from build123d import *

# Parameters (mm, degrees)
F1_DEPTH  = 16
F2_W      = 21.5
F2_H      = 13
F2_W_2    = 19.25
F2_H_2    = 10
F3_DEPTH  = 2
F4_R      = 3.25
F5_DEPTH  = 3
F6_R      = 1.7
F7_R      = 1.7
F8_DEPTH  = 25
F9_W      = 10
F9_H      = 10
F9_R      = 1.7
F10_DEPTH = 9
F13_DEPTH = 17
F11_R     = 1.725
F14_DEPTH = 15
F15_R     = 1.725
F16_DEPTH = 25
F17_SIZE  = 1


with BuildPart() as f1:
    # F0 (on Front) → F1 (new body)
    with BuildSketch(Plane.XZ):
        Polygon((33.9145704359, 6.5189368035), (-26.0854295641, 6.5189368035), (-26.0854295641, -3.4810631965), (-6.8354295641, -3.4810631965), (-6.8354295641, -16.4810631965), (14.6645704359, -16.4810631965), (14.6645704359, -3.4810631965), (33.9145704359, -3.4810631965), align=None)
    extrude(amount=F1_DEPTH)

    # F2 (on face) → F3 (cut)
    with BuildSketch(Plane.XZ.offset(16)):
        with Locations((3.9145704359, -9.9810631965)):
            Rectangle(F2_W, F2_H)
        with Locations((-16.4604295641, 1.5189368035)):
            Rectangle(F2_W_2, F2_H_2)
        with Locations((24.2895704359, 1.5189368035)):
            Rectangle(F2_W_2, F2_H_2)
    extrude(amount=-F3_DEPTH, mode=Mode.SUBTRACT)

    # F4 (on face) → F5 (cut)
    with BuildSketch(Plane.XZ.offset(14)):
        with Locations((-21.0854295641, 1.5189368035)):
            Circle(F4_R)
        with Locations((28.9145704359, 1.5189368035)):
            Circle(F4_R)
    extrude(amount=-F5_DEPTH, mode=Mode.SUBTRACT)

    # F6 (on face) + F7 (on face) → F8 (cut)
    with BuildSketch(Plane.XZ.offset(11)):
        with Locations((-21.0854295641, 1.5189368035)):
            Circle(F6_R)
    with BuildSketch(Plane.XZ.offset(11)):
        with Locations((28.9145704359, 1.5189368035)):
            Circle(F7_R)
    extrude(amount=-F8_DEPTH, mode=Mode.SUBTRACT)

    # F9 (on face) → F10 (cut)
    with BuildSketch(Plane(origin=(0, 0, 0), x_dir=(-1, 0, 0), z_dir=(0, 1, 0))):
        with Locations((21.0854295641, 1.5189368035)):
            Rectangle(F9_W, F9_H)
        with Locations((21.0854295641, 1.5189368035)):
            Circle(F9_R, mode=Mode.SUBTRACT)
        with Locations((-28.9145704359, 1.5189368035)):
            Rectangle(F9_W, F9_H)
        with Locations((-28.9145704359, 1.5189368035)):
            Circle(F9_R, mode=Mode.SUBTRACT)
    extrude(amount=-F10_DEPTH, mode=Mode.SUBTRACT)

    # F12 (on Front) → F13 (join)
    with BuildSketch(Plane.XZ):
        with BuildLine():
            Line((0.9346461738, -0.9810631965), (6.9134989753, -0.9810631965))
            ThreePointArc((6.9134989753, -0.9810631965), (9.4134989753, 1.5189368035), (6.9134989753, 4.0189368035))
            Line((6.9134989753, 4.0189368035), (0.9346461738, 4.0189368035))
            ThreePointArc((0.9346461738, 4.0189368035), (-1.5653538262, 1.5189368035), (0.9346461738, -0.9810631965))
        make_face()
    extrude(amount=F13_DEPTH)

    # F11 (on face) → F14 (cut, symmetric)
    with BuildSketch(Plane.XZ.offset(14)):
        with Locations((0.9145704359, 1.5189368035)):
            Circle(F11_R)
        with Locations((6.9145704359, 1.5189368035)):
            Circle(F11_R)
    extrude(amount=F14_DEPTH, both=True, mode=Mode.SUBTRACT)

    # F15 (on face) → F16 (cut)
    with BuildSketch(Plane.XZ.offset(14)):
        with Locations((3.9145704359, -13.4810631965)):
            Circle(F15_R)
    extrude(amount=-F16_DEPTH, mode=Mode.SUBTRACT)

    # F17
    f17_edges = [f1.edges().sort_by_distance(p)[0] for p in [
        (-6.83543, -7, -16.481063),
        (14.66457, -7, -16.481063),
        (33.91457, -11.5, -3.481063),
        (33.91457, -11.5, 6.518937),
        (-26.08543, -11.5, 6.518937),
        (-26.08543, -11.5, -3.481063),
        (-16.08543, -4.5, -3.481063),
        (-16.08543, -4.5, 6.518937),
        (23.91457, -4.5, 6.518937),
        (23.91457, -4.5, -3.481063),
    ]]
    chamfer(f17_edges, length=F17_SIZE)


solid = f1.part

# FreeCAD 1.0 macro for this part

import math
import FreeCAD as App
import Part
import Sketcher
from FreeCAD import Vector
Q = App.Units.Quantity


def edges_at(feature, points):
    """Names of the edges that pass closest to the given points."""
    edges = feature.Shape.Edges
    near = lambda p: min(range(len(edges)), key=lambda i: edges[i].distToShape(Part.Vertex(*p))[0])
    return sorted({f"Edge{near(p) + 1}" for p in points})

doc = App.newDocument("Part")
body = doc.addObject("PartDesign::Body", "Body")

# Sketch on XZ plane
sketch1 = body.newObject("Sketcher::SketchObject", "Sketch")
sketch1.AttachmentSupport = (doc.getObject("XZ_Plane"), [""])
sketch1.MapMode = "FlatFace"
sketch1.addGeometry([
    Part.LineSegment(Vector(33.91457, 6.518937, 0), Vector(-26.08543, 6.518937, 0)),  # 0
    Part.LineSegment(Vector(-26.08543, 6.518937, 0), Vector(-26.08543, -3.481063, 0)),  # 1
    Part.LineSegment(Vector(-26.08543, -3.481063, 0), Vector(-6.83543, -3.481063, 0)),  # 2
    Part.LineSegment(Vector(-6.83543, -3.481063, 0), Vector(-6.83543, -16.481063, 0)),  # 3
    Part.LineSegment(Vector(-6.83543, -16.481063, 0), Vector(14.66457, -16.481063, 0)),  # 4
    Part.LineSegment(Vector(14.66457, -16.481063, 0), Vector(14.66457, -3.481063, 0)),  # 5
    Part.LineSegment(Vector(14.66457, -3.481063, 0), Vector(33.91457, -3.481063, 0)),  # 6
    Part.LineSegment(Vector(33.91457, -3.481063, 0), Vector(33.91457, 6.518937, 0)),  # 7
], False)
sketch1.addConstraint([
    Sketcher.Constraint("Coincident", 0, 2, 1, 1),
    Sketcher.Constraint("Coincident", 1, 2, 2, 1),
    Sketcher.Constraint("Coincident", 2, 2, 3, 1),
    Sketcher.Constraint("Coincident", 3, 2, 4, 1),
    Sketcher.Constraint("Coincident", 4, 2, 5, 1),
    Sketcher.Constraint("Coincident", 5, 2, 6, 1),
    Sketcher.Constraint("Coincident", 6, 2, 7, 1),
    Sketcher.Constraint("Coincident", 7, 2, 0, 1),
    Sketcher.Constraint("Horizontal", 0),
    Sketcher.Constraint("Vertical", 1),
    Sketcher.Constraint("Horizontal", 2),
    Sketcher.Constraint("Vertical", 3),
    Sketcher.Constraint("Horizontal", 4),
    Sketcher.Constraint("Vertical", 5),
    Sketcher.Constraint("Horizontal", 6),
    Sketcher.Constraint("Vertical", 7),
    Sketcher.Constraint("Horizontal", 2, 2, 5, 2),
    Sketcher.Constraint("Equal", 2, 6),
    Sketcher.Constraint("DistanceX", 0, 2, 0, 1, Q("60 mm")),
    Sketcher.Constraint("DistanceY", 1, 2, 1, 1, Q("10 mm")),
    Sketcher.Constraint("DistanceY", 3, 2, 3, 1, Q("13 mm")),
    Sketcher.Constraint("DistanceX", 4, 1, 4, 2, Q("21.5 mm")),
    Sketcher.Constraint("DistanceX", 0, 2, -1, 1, Q("26.08543 mm")),
    Sketcher.Constraint("DistanceY", -1, 1, 0, 2, Q("6.518937 mm")),
])
pad1 = body.newObject("PartDesign::Pad", "Pad")
pad1.Profile = sketch1
pad1.Length = 16

# Sketch on XZ plane
sketch2 = body.newObject("Sketcher::SketchObject", "Sketch001")
sketch2.AttachmentSupport = (doc.getObject("XZ_Plane"), [""])
sketch2.MapMode = "FlatFace"
sketch2.AttachmentOffset = App.Placement(Vector(0, 0, 16), App.Rotation())
sketch2.addGeometry([
    Part.LineSegment(Vector(-6.83543, -3.481063, 0), Vector(-6.83543, -16.481063, 0)),  # 0
    Part.LineSegment(Vector(-6.83543, -16.481063, 0), Vector(14.66457, -16.481063, 0)),  # 1
    Part.LineSegment(Vector(14.66457, -16.481063, 0), Vector(14.66457, -3.481063, 0)),  # 2
    Part.LineSegment(Vector(14.66457, -3.481063, 0), Vector(-6.83543, -3.481063, 0)),  # 3
    Part.LineSegment(Vector(-26.08543, 6.518937, 0), Vector(-26.08543, -3.481063, 0)),  # 4
    Part.LineSegment(Vector(-26.08543, -3.481063, 0), Vector(-6.83543, -3.481063, 0)),  # 5
    Part.LineSegment(Vector(-6.83543, -3.481063, 0), Vector(-6.83543, 6.518937, 0)),  # 6
    Part.LineSegment(Vector(-6.83543, 6.518937, 0), Vector(-26.08543, 6.518937, 0)),  # 7
    Part.LineSegment(Vector(14.66457, 6.518937, 0), Vector(14.66457, -3.481063, 0)),  # 8
    Part.LineSegment(Vector(14.66457, -3.481063, 0), Vector(33.91457, -3.481063, 0)),  # 9
    Part.LineSegment(Vector(33.91457, -3.481063, 0), Vector(33.91457, 6.518937, 0)),  # 10
    Part.LineSegment(Vector(33.91457, 6.518937, 0), Vector(14.66457, 6.518937, 0)),  # 11
], False)
sketch2.addConstraint([
    Sketcher.Constraint("Coincident", 0, 2, 1, 1),
    Sketcher.Constraint("Coincident", 1, 2, 2, 1),
    Sketcher.Constraint("Coincident", 2, 2, 3, 1),
    Sketcher.Constraint("Coincident", 3, 2, 0, 1),
    Sketcher.Constraint("Coincident", 4, 2, 5, 1),
    Sketcher.Constraint("Coincident", 5, 2, 6, 1),
    Sketcher.Constraint("Coincident", 6, 2, 7, 1),
    Sketcher.Constraint("Coincident", 7, 2, 4, 1),
    Sketcher.Constraint("Coincident", 8, 2, 9, 1),
    Sketcher.Constraint("Coincident", 9, 2, 10, 1),
    Sketcher.Constraint("Coincident", 10, 2, 11, 1),
    Sketcher.Constraint("Coincident", 11, 2, 8, 1),
    Sketcher.Constraint("Vertical", 0),
    Sketcher.Constraint("Horizontal", 1),
    Sketcher.Constraint("Vertical", 2),
    Sketcher.Constraint("Horizontal", 3),
    Sketcher.Constraint("Vertical", 4),
    Sketcher.Constraint("Horizontal", 5),
    Sketcher.Constraint("Vertical", 6),
    Sketcher.Constraint("Horizontal", 7),
    Sketcher.Constraint("Vertical", 8),
    Sketcher.Constraint("Horizontal", 9),
    Sketcher.Constraint("Vertical", 10),
    Sketcher.Constraint("Horizontal", 11),
    Sketcher.Constraint("Coincident", 5, 2, 3, 2),
    Sketcher.Constraint("Coincident", 8, 2, 2, 2),
    Sketcher.Constraint("Horizontal", 7, 2, 10, 2),
    Sketcher.Constraint("Equal", 7, 9),
    Sketcher.Constraint("DistanceY", 0, 2, 0, 1, Q("13 mm")),
    Sketcher.Constraint("DistanceY", 4, 2, 4, 1, Q("10 mm")),
    Sketcher.Constraint("DistanceX", 1, 1, 1, 2, Q("21.5 mm")),
    Sketcher.Constraint("DistanceX", 5, 1, 5, 2, Q("19.25 mm")),
    Sketcher.Constraint("DistanceX", 0, 2, -1, 1, Q("6.83543 mm")),
    Sketcher.Constraint("DistanceY", 0, 2, -1, 1, Q("16.481063 mm")),
])
pocket1 = body.newObject("PartDesign::Pocket", "Pocket")
pocket1.Profile = sketch2
pocket1.Length = 2

# Sketch on XZ plane
sketch3 = body.newObject("Sketcher::SketchObject", "Sketch002")
sketch3.AttachmentSupport = (doc.getObject("XZ_Plane"), [""])
sketch3.MapMode = "FlatFace"
sketch3.AttachmentOffset = App.Placement(Vector(0, 0, 14), App.Rotation())
sketch3.addGeometry([
    Part.Circle(Vector(-21.08543, 1.518937, 0), Vector(0, 0, 1), 3.25),
    Part.Circle(Vector(28.91457, 1.518937, 0), Vector(0, 0, 1), 3.25),
], False)
sketch3.addConstraint([
    Sketcher.Constraint("Equal", 0, 1),
    Sketcher.Constraint("Horizontal", 0, 3, 1, 3),
    Sketcher.Constraint("Diameter", 0, Q("6.5 mm")),
    Sketcher.Constraint("DistanceX", 0, 3, 1, 3, Q("50 mm")),
    Sketcher.Constraint("DistanceX", 0, 3, -1, 1, Q("21.08543 mm")),
    Sketcher.Constraint("DistanceY", -1, 1, 0, 3, Q("1.518937 mm")),
])
pocket2 = body.newObject("PartDesign::Pocket", "Pocket001")
pocket2.Profile = sketch3
pocket2.Length = 3

# Sketch on XZ plane
sketch4 = body.newObject("Sketcher::SketchObject", "Sketch003")
sketch4.AttachmentSupport = (doc.getObject("XZ_Plane"), [""])
sketch4.MapMode = "FlatFace"
sketch4.AttachmentOffset = App.Placement(Vector(0, 0, 11), App.Rotation())
sketch4.addGeometry([
    Part.Circle(Vector(-21.08543, 1.518937, 0), Vector(0, 0, 1), 1.7),
    Part.Circle(Vector(28.91457, 1.518937, 0), Vector(0, 0, 1), 1.7),
], False)
sketch4.addConstraint([
    Sketcher.Constraint("Equal", 0, 1),
    Sketcher.Constraint("Horizontal", 0, 3, 1, 3),
    Sketcher.Constraint("Diameter", 0, Q("3.4 mm")),
    Sketcher.Constraint("DistanceX", 0, 3, 1, 3, Q("50 mm")),
    Sketcher.Constraint("DistanceX", 0, 3, -1, 1, Q("21.08543 mm")),
    Sketcher.Constraint("DistanceY", -1, 1, 0, 3, Q("1.518937 mm")),
])
pocket3 = body.newObject("PartDesign::Pocket", "Pocket002")
pocket3.Profile = sketch4
pocket3.Length = 25

# Sketch on XZ plane
sketch5 = body.newObject("Sketcher::SketchObject", "Sketch004")
sketch5.AttachmentSupport = (doc.getObject("XZ_Plane"), [""])
sketch5.MapMode = "FlatFace"
sketch5.addGeometry([
    Part.LineSegment(Vector(-16.08543, 6.518937, 0), Vector(-16.08543, -3.481063, 0)),  # 0
    Part.LineSegment(Vector(-16.08543, -3.481063, 0), Vector(-26.08543, -3.481063, 0)),  # 1
    Part.LineSegment(Vector(-26.08543, -3.481063, 0), Vector(-26.08543, 6.518937, 0)),  # 2
    Part.LineSegment(Vector(-26.08543, 6.518937, 0), Vector(-16.08543, 6.518937, 0)),  # 3
    Part.Circle(Vector(-21.08543, 1.518937, 0), Vector(0, 0, 1), 1.7),  # 4
    Part.LineSegment(Vector(33.91457, 6.518937, 0), Vector(33.91457, -3.481063, 0)),  # 5
    Part.LineSegment(Vector(33.91457, -3.481063, 0), Vector(23.91457, -3.481063, 0)),  # 6
    Part.LineSegment(Vector(23.91457, -3.481063, 0), Vector(23.91457, 6.518937, 0)),  # 7
    Part.LineSegment(Vector(23.91457, 6.518937, 0), Vector(33.91457, 6.518937, 0)),  # 8
    Part.Circle(Vector(28.91457, 1.518937, 0), Vector(0, 0, 1), 1.7),  # 9
], False)
sketch5.addConstraint([
    Sketcher.Constraint("Coincident", 0, 2, 1, 1),
    Sketcher.Constraint("Coincident", 1, 2, 2, 1),
    Sketcher.Constraint("Coincident", 2, 2, 3, 1),
    Sketcher.Constraint("Coincident", 3, 2, 0, 1),
    Sketcher.Constraint("Coincident", 5, 2, 6, 1),
    Sketcher.Constraint("Coincident", 6, 2, 7, 1),
    Sketcher.Constraint("Coincident", 7, 2, 8, 1),
    Sketcher.Constraint("Coincident", 8, 2, 5, 1),
    Sketcher.Constraint("Vertical", 0),
    Sketcher.Constraint("Horizontal", 1),
    Sketcher.Constraint("Vertical", 2),
    Sketcher.Constraint("Horizontal", 3),
    Sketcher.Constraint("Vertical", 5),
    Sketcher.Constraint("Horizontal", 6),
    Sketcher.Constraint("Vertical", 7),
    Sketcher.Constraint("Horizontal", 8),
    Sketcher.Constraint("Equal", 4, 9),
    Sketcher.Constraint("Horizontal", 4, 3, 9, 3),
    Sketcher.Constraint("Horizontal", 1, 2, 5, 2),
    Sketcher.Constraint("Horizontal", 3, 2, 7, 2),
    Sketcher.Constraint("Equal", 3, 6),
    Sketcher.Constraint("Equal", 8, 0),
    Sketcher.Constraint("Diameter", 4, Q("3.4 mm")),
    Sketcher.Constraint("DistanceX", 1, 2, 1, 1, Q("10 mm")),
    Sketcher.Constraint("DistanceX", 4, 3, 9, 3, Q("50 mm")),
    Sketcher.Constraint("DistanceX", 4, 3, 0, 2, Q("5 mm")),
    Sketcher.Constraint("DistanceY", 0, 2, 4, 3, Q("5 mm")),
    Sketcher.Constraint("DistanceX", 9, 3, 5, 2, Q("5 mm")),
    Sketcher.Constraint("DistanceX", 4, 3, -1, 1, Q("21.08543 mm")),
    Sketcher.Constraint("DistanceY", -1, 1, 4, 3, Q("1.518937 mm")),
])
pocket4 = body.newObject("PartDesign::Pocket", "Pocket003")
pocket4.Profile = sketch5
pocket4.Length = 9
pocket4.Reversed = True

# Sketch on XZ plane
sketch6 = body.newObject("Sketcher::SketchObject", "Sketch005")
sketch6.AttachmentSupport = (doc.getObject("XZ_Plane"), [""])
sketch6.MapMode = "FlatFace"
sketch6.addGeometry([
    Part.LineSegment(Vector(0.934646, -0.981063, 0), Vector(6.913499, -0.981063, 0)),
    Part.ArcOfCircle(Part.Circle(Vector(6.913499, 1.518937, 0), Vector(0, 0, 1), 2.5), math.radians(-90), math.radians(90)),
    Part.LineSegment(Vector(6.913499, 4.018937, 0), Vector(0.934646, 4.018937, 0)),
    Part.ArcOfCircle(Part.Circle(Vector(0.934646, 1.518937, 0), Vector(0, 0, 1), 2.5), math.radians(90), math.radians(270)),
], False)
sketch6.addConstraint([
    Sketcher.Constraint("Tangent", 0, 2, 1, 1),
    Sketcher.Constraint("Tangent", 1, 2, 2, 1),
    Sketcher.Constraint("Tangent", 2, 2, 3, 1),
    Sketcher.Constraint("Tangent", 3, 2, 0, 1),
    Sketcher.Constraint("Horizontal", 0),
    Sketcher.Constraint("Horizontal", 2),
    Sketcher.Constraint("Radius", 1, Q("2.5 mm")),
    Sketcher.Constraint("DistanceX", -1, 1, 1, 3, Q("6.913499 mm")),
    Sketcher.Constraint("DistanceX", 0, 1, 0, 2, Q("5.978853 mm")),
    Sketcher.Constraint("DistanceY", -1, 1, 1, 3, Q("1.518937 mm")),
])
pad2 = body.newObject("PartDesign::Pad", "Pad001")
pad2.Profile = sketch6
pad2.Length = 17

# Sketch on XZ plane
sketch7 = body.newObject("Sketcher::SketchObject", "Sketch006")
sketch7.AttachmentSupport = (doc.getObject("XZ_Plane"), [""])
sketch7.MapMode = "FlatFace"
sketch7.AttachmentOffset = App.Placement(Vector(0, 0, 14), App.Rotation())
sketch7.addGeometry([
    Part.Circle(Vector(0.91457, 1.518937, 0), Vector(0, 0, 1), 1.725),
    Part.Circle(Vector(6.91457, 1.518937, 0), Vector(0, 0, 1), 1.725),
], False)
sketch7.addConstraint([
    Sketcher.Constraint("Equal", 0, 1),
    Sketcher.Constraint("Horizontal", 0, 3, 1, 3),
    Sketcher.Constraint("Diameter", 0, Q("3.45 mm")),
    Sketcher.Constraint("DistanceX", 0, 3, 1, 3, Q("6 mm")),
    Sketcher.Constraint("DistanceX", -1, 1, 0, 3, Q("0.91457 mm")),
    Sketcher.Constraint("DistanceY", -1, 1, 0, 3, Q("1.518937 mm")),
])
pocket5 = body.newObject("PartDesign::Pocket", "Pocket004")
pocket5.Profile = sketch7
pocket5.Length = 30
pocket5.Midplane = True

# Sketch on XZ plane
sketch8 = body.newObject("Sketcher::SketchObject", "Sketch007")
sketch8.AttachmentSupport = (doc.getObject("XZ_Plane"), [""])
sketch8.MapMode = "FlatFace"
sketch8.AttachmentOffset = App.Placement(Vector(0, 0, 14), App.Rotation())
sketch8.addGeometry(Part.Circle(Vector(3.91457, -13.481063, 0), Vector(0, 0, 1), 1.725), False)
sketch8.addConstraint([
    Sketcher.Constraint("Diameter", 0, Q("3.45 mm")),
    Sketcher.Constraint("DistanceX", -1, 1, 0, 3, Q("3.91457 mm")),
    Sketcher.Constraint("DistanceY", 0, 3, -1, 1, Q("13.481063 mm")),
])
pocket6 = body.newObject("PartDesign::Pocket", "Pocket005")
pocket6.Profile = sketch8
pocket6.Length = 25
doc.recompute()

chamfer = body.newObject("PartDesign::Chamfer", "Chamfer")
chamfer.Base = (pocket6, edges_at(pocket6, [
    (-6.835, -7, -16.481),
    (14.665, -7, -16.481),
    (33.915, -11.5, -3.481),
    (33.915, -11.5, 6.519),
    (-26.085, -11.5, 6.519),
    (-26.085, -11.5, -3.481),
    (-16.085, -4.5, -3.481),
    (-16.085, -4.5, 6.519),
    (23.915, -4.5, 6.519),
    (23.915, -4.5, -3.481),
]))
chamfer.Size = 1

doc.recompute()
